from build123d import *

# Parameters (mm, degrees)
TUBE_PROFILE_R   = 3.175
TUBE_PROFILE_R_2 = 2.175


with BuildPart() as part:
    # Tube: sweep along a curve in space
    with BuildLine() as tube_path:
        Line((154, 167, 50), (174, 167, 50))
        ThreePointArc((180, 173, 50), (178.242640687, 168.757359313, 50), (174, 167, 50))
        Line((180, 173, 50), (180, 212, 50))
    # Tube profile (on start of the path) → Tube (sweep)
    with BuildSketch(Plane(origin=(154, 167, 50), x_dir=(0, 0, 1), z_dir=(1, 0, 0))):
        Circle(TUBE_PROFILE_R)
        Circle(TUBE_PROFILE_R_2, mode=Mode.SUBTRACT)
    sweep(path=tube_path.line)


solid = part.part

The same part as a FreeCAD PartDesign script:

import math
import FreeCAD as App
import Part
import Sketcher
Q = App.Units.Quantity

doc = App.newDocument("Part")
body = doc.addObject("PartDesign::Body", "Body")

# Sketch on YZ plane
sketch1 = body.newObject("Sketcher::SketchObject", "Sketch")
sketch1.AttachmentSupport = (doc.getObject("YZ_Plane"), [""])
sketch1.MapMode = "FlatFace"
sketch1.AttachmentOffset = App.Placement(App.Vector(0, 0, 154), App.Rotation())
sketch1.addGeometry([
    Part.Circle(App.Vector(167, 50, 0), App.Vector(0, 0, 1), 3.2),
    Part.Circle(App.Vector(167, 50, 0), App.Vector(0, 0, 1), 2.2),
], False)
sketch1.addConstraint([
    Sketcher.Constraint("Coincident", 1, 3, 0, 3),
    Sketcher.Constraint("Diameter", 0, Q("6.35 mm")),
    Sketcher.Constraint("Diameter", 1, Q("4.35 mm")),
    Sketcher.Constraint("DistanceX", -1, 1, 0, 3, Q("167 mm")),
    Sketcher.Constraint("DistanceY", -1, 1, 0, 3, Q("50 mm")),
])

# Sketch on XY plane
sketch2 = body.newObject("Sketcher::SketchObject", "Sketch001")
sketch2.AttachmentSupport = (doc.getObject("XY_Plane"), [""])
sketch2.MapMode = "FlatFace"
sketch2.AttachmentOffset = App.Placement(App.Vector(0, 0, 50), App.Rotation())
sketch2.addGeometry([
    Part.LineSegment(App.Vector(154, 167, 0), App.Vector(174, 167, 0)),
    Part.ArcOfCircle(Part.Circle(App.Vector(174, 173, 0), App.Vector(0, 0, 1), 6), math.radians(-90), math.radians(0)),
    Part.LineSegment(App.Vector(180, 173, 0), App.Vector(180, 212, 0)),
], False)
sketch2.addConstraint([
    Sketcher.Constraint("Tangent", 0, 2, 1, 1),
    Sketcher.Constraint("Tangent", 1, 2, 2, 1),
    Sketcher.Constraint("Horizontal", 0),
    Sketcher.Constraint("Vertical", 2),
    Sketcher.Constraint("Radius", 1, Q("6 mm")),
    Sketcher.Constraint("DistanceX", 0, 1, 0, 2, Q("20 mm")),
    Sketcher.Constraint("DistanceY", 2, 1, 2, 2, Q("39 mm")),
    Sketcher.Constraint("DistanceX", -1, 1, 1, 3, Q("174 mm")),
    Sketcher.Constraint("DistanceY", -1, 1, 1, 3, Q("173 mm")),
])
doc.recompute()

additivepipe = body.newObject("PartDesign::AdditivePipe", "AdditivePipe")
additivepipe.Profile = sketch1
additivepipe.Spine = (sketch2, ["Edge1", "Edge2", "Edge3"])

doc.recompute()
